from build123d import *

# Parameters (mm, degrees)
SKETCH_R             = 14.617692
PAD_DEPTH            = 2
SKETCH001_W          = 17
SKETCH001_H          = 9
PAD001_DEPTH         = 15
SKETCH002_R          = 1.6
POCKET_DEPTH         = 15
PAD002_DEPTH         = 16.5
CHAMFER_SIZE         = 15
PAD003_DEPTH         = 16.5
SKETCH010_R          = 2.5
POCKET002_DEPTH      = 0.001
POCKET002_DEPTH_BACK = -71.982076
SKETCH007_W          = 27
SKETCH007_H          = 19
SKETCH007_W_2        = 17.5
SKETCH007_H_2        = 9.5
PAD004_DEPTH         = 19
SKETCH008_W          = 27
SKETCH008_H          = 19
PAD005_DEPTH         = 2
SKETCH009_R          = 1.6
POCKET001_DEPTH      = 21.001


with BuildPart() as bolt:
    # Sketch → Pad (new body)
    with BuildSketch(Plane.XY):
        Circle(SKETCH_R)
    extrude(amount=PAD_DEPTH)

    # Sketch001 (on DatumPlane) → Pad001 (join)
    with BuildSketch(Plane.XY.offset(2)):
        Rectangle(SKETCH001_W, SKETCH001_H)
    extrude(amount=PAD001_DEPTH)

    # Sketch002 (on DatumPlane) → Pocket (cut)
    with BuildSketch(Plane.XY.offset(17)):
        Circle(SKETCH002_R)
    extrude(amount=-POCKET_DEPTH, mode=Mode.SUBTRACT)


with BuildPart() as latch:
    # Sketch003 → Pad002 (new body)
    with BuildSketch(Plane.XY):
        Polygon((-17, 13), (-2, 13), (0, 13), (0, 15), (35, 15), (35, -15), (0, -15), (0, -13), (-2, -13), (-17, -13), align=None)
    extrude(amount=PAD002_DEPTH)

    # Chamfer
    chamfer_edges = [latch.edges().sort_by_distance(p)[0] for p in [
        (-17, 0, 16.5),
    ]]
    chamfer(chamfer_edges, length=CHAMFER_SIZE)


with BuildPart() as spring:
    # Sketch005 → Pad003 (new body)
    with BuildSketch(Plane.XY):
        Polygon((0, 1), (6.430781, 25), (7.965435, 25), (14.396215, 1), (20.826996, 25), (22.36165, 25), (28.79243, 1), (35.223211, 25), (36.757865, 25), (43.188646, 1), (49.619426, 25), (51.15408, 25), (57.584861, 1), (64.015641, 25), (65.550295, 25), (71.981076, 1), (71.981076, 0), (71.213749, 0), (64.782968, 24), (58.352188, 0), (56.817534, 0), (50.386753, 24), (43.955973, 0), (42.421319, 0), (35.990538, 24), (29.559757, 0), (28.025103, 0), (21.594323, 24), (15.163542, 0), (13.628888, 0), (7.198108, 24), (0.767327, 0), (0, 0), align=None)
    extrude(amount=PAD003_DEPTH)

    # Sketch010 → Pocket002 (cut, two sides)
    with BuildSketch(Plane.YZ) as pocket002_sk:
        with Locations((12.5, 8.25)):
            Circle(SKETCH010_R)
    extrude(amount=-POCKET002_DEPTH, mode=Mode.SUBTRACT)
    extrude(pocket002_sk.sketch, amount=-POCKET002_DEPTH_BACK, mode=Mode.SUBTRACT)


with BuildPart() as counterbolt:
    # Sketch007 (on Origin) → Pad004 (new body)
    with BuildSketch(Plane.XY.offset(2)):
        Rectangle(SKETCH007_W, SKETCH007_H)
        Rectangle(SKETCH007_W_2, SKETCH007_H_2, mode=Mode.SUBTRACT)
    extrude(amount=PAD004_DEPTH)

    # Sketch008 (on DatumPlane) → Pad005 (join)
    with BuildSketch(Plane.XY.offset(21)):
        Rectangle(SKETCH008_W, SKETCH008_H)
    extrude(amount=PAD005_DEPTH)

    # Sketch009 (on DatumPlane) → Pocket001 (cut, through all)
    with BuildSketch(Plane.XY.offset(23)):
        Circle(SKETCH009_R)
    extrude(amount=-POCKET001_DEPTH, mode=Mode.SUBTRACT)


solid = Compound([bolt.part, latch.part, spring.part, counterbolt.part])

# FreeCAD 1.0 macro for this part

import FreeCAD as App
import Part
import Sketcher
from FreeCAD import Vector
Q = App.Units.Quantity


def edges_at(feature, points):
    """Names of the edges that pass closest to the given points."""
    edges = feature.Shape.Edges
    near = lambda p: min(range(len(edges)), key=lambda i: edges[i].distToShape(Part.Vertex(*p))[0])
    return sorted({f"Edge{near(p) + 1}" for p in points})


def add_polygon(sketch, points):
    """Adds a closed chain of lines whose ends are joined by coincident constraints."""
    first, n = sketch.GeometryCount, len(points)
    for a, b in zip(points, points[1:] + points[:1]):
        sketch.addGeometry(Part.LineSegment(App.Vector(*a, 0), App.Vector(*b, 0)), False)
    for i in range(n):
        sketch.addConstraint(Sketcher.Constraint("Coincident", first + i, 2, first + (i + 1) % n, 1))

doc = App.newDocument("Part")
body = doc.addObject("PartDesign::Body", "Body")

sketch1 = doc.addObject("Sketcher::SketchObject", "Sketch")
body.addObject(sketch1)
sketch1.AttachmentSupport = (doc.XY_Plane, [""])
sketch1.MapMode = "FlatFace"
sketch1.addGeometry(Part.Circle(Vector(0, 0, 0), Vector(0, 0, 1), 14.617692), False)
sketch1.addConstraint([
    Sketcher.Constraint("Coincident", 0, 3, -1, 1),
    Sketcher.Constraint("Diameter", 0, 29.235384),
])
pad1 = doc.addObject("PartDesign::Pad", "Pad")
body.addObject(pad1)
pad1.Profile = sketch1
pad1.Length = 2

sketch2 = doc.addObject("Sketcher::SketchObject", "Sketch001")
body.addObject(sketch2)
sketch2.AttachmentSupport = (doc.XY_Plane, [""])
sketch2.MapMode = "FlatFace"
sketch2.AttachmentOffset = App.Placement(Vector(0, 0, 2), App.Rotation())
add_polygon(sketch2, [(-8.5, 4.5), (-8.5, -4.5), (8.5, -4.5), (8.5, 4.5)])
sketch2.addConstraint([
    Sketcher.Constraint("Vertical", 0),
    Sketcher.Constraint("Horizontal", 1),
    Sketcher.Constraint("Vertical", 2),
    Sketcher.Constraint("Horizontal", 3),
    Sketcher.Constraint("Symmetric", 0, 2, 2, 2, -1, 1),
    Sketcher.Constraint("DistanceX", 1, 1, 1, 2, 17.0),
    Sketcher.Constraint("DistanceY", 0, 2, 0, 1, 9.0),
])
pad2 = doc.addObject("PartDesign::Pad", "Pad001")
body.addObject(pad2)
pad2.Profile = sketch2
pad2.Length = 15

sketch3 = doc.addObject("Sketcher::SketchObject", "Sketch002")
body.addObject(sketch3)
sketch3.AttachmentSupport = (doc.XY_Plane, [""])
sketch3.MapMode = "FlatFace"
sketch3.AttachmentOffset = App.Placement(Vector(0, 0, 17), App.Rotation())
sketch3.addGeometry(Part.Circle(Vector(0, 0, 0), Vector(0, 0, 1), 1.6), False)
sketch3.addConstraint([
    Sketcher.Constraint("Coincident", 0, 3, -1, 1),
    Sketcher.Constraint("Diameter", 0, 3.2),
])
pocket1 = doc.addObject("PartDesign::Pocket", "Pocket")
body.addObject(pocket1)
pocket1.Profile = sketch3
pocket1.Length = 15
body2 = doc.addObject("PartDesign::Body", "Body001")

sketch4 = doc.addObject("Sketcher::SketchObject", "Sketch003")
body2.addObject(sketch4)
sketch4.AttachmentSupport = (doc.getObject("XY_Plane001"), [""])
sketch4.MapMode = "FlatFace"
add_polygon(sketch4, [(0, 13), (-17, 13), (-17, -13), (0, -13), (0, -15), (35, -15), (35, 15), (0, 15)])
sketch4.addConstraint([
    Sketcher.Constraint("Horizontal", 0),
    Sketcher.Constraint("Vertical", 1),
    Sketcher.Constraint("Horizontal", 2),
    Sketcher.Constraint("Vertical", 3),
    Sketcher.Constraint("Horizontal", 4),
    Sketcher.Constraint("Vertical", 5),
    Sketcher.Constraint("Horizontal", 6),
    Sketcher.Constraint("Vertical", 7),
    Sketcher.Constraint("Symmetric", 3, 2, 6, 2, -1, 1),
    Sketcher.Constraint("Symmetric", 2, 2, 7, 2, -1),
    Sketcher.Constraint("DistanceX", 0, 2, 0, 1, 17.0),
    Sketcher.Constraint("DistanceX", 4, 1, 4, 2, 35.0),
    Sketcher.Constraint("DistanceY", 1, 2, 1, 1, 26.0),
    Sketcher.Constraint("DistanceY", 3, 2, 3, 1, 2.0),
])
pad3 = doc.addObject("PartDesign::Pad", "Pad002")
body2.addObject(pad3)
pad3.Profile = sketch4
pad3.Length = 16.5
doc.recompute()

chamfer = doc.addObject("PartDesign::Chamfer", "Chamfer")
body2.addObject(chamfer)
chamfer.Base = (pad3, edges_at(pad3, [(-17, 0, 16.5)]))
chamfer.Size = 15
body3 = doc.addObject("PartDesign::Body", "Body002")

sketch5 = doc.addObject("Sketcher::SketchObject", "Sketch004")
body3.addObject(sketch5)
sketch5.AttachmentSupport = (doc.getObject("XY_Plane002"), [""])
sketch5.MapMode = "FlatFace"
add_polygon(sketch5, [(6.430781, 25), (0, 1), (0, 0), (0.767327, 0), (7.198108, 24), (13.628888, 0), (15.163542, 0), (21.594323, 24), (28.025103, 0), (29.559757, 0), (35.990538, 24), (42.421319, 0), (43.955973, 0), (50.386753, 24), (56.817534, 0), (58.352188, 0), (64.782968, 24), (71.213749, 0), (71.981076, 0), (71.981076, 1), (65.550295, 25), (64.015641, 25), (57.584861, 1), (51.15408, 25), (49.619426, 25), (43.188646, 1), (36.757865, 25), (35.223211, 25), (28.79243, 1), (22.36165, 25), (20.826996, 25), (14.396215, 1), (7.965435, 25)])
sketch5.addConstraint([
    Sketcher.Constraint("Vertical", 1),
    Sketcher.Constraint("Horizontal", 2),
    Sketcher.Constraint("Horizontal", 5),
    Sketcher.Constraint("Horizontal", 8),
    Sketcher.Constraint("Horizontal", 11),
    Sketcher.Constraint("Horizontal", 14),
    Sketcher.Constraint("Horizontal", 17),
    Sketcher.Constraint("Vertical", 18),
    Sketcher.Constraint("Horizontal", 20),
    Sketcher.Constraint("Horizontal", 23),
    Sketcher.Constraint("Horizontal", 26),
    Sketcher.Constraint("Horizontal", 29),
    Sketcher.Constraint("Horizontal", 32),
    Sketcher.Constraint("Coincident", 1, 2, -1, 1),
    Sketcher.Constraint("PointOnObject", 4, 2, -1),
    Sketcher.Constraint("PointOnObject", 7, 2, -1),
    Sketcher.Constraint("PointOnObject", 10, 2, -1),
    Sketcher.Constraint("PointOnObject", 13, 2, -1),
    Sketcher.Constraint("PointOnObject", 16, 2, -1),
    Sketcher.Constraint("Parallel", 0, 3),
    Sketcher.Constraint("Parallel", 3, 6),
    Sketcher.Constraint("Parallel", 4, 7),
    Sketcher.Constraint("Parallel", 6, 9),
    Sketcher.Constraint("Parallel", 7, 10),
    Sketcher.Constraint("Parallel", 9, 12),
    Sketcher.Constraint("Parallel", 10, 13),
    Sketcher.Constraint("Parallel", 12, 15),
    Sketcher.Constraint("Parallel", 13, 16),
    Sketcher.Constraint("Parallel", 16, 19),
    Sketcher.Constraint("Parallel", 15, 21),
    Sketcher.Constraint("Parallel", 19, 22),
    Sketcher.Constraint("Parallel", 21, 24),
    Sketcher.Constraint("Parallel", 22, 25),
    Sketcher.Constraint("Parallel", 24, 27),
    Sketcher.Constraint("Parallel", 25, 28),
    Sketcher.Constraint("Parallel", 27, 30),
    Sketcher.Constraint("Parallel", 28, 31),
    Sketcher.Constraint("Horizontal", 3, 2, 6, 2),
    Sketcher.Constraint("Horizontal", 6, 2, 9, 2),
    Sketcher.Constraint("Horizontal", 9, 2, 12, 2),
    Sketcher.Constraint("Horizontal", 12, 2, 15, 2),
    Sketcher.Constraint("Horizontal", 0, 2, 18, 2),
    Sketcher.Constraint("Horizontal", 18, 2, 21, 2),
    Sketcher.Constraint("Horizontal", 20, 2, 22, 2),
    Sketcher.Constraint("Horizontal", 21, 2, 24, 2),
    Sketcher.Constraint("Horizontal", 23, 2, 25, 2),
    Sketcher.Constraint("Horizontal", 24, 2, 27, 2),
    Sketcher.Constraint("Horizontal", 26, 2, 28, 2),
    Sketcher.Constraint("Horizontal", 27, 2, 30, 2),
    Sketcher.Constraint("Horizontal", 29, 2, 31, 2),
    Sketcher.Constraint("Equal", 5, 8),
    Sketcher.Constraint("Equal", 8, 11),
    Sketcher.Constraint("Equal", 11, 14),
    Sketcher.Constraint("Equal", 2, 17),
    Sketcher.Constraint("Equal", 14, 20),
    Sketcher.Constraint("Equal", 20, 23),
    Sketcher.Constraint("Equal", 23, 26),
    Sketcher.Constraint("Equal", 26, 29),
    Sketcher.Constraint("Equal", 29, 32),
    Sketcher.Constraint("Equal", 0, 3),
    Sketcher.Constraint("Equal", 3, 4),
    Sketcher.Constraint("DistanceY", 1, 2, 1, 1, 1.0),
    Sketcher.Constraint("Angle", 0, Q("-105.000001 deg")),
    Sketcher.Constraint("DistanceY", -1, 1, 3, 2, 24.0),
    Sketcher.Constraint("DistanceX", 2, 1, 2, 2, 0.767327),
])
pad4 = doc.addObject("PartDesign::Pad", "Pad003")
body3.addObject(pad4)
pad4.Profile = sketch5
pad4.Length = 16.5

sketch6 = doc.addObject("Sketcher::SketchObject", "Sketch005")
body3.addObject(sketch6)
sketch6.AttachmentSupport = (doc.getObject("YZ_Plane002"), [""])
sketch6.MapMode = "FlatFace"
sketch6.addGeometry(Part.Circle(Vector(12.5, 8.25, 0), Vector(0, 0, 1), 2.5), False)
sketch6.addConstraint([
    Sketcher.Constraint("Diameter", 0, 5.0),
    Sketcher.Constraint("DistanceX", -1, 1, 0, 3, 12.5),
    Sketcher.Constraint("DistanceY", -1, 1, 0, 3, 8.25),
])
pocket2 = doc.addObject("PartDesign::Pocket", "Pocket001")
body3.addObject(pocket2)
pocket2.Profile = sketch6
pocket2.Type = "ThroughAll"
pocket2.Midplane = True
body4 = doc.addObject("PartDesign::Body", "Body003")

sketch7 = doc.addObject("Sketcher::SketchObject", "Sketch006")
body4.addObject(sketch7)
sketch7.AttachmentSupport = (doc.getObject("XY_Plane003"), [""])
sketch7.MapMode = "FlatFace"
sketch7.AttachmentOffset = App.Placement(Vector(0, 0, 2), App.Rotation())
add_polygon(sketch7, [(-13.5, 9.5), (-13.5, -9.5), (13.5, -9.5), (13.5, 9.5)])
add_polygon(sketch7, [(8.75, -4.75), (-8.75, -4.75), (-8.75, 4.75), (8.75, 4.75)])
sketch7.addConstraint([
    Sketcher.Constraint("Vertical", 0),
    Sketcher.Constraint("Horizontal", 1),
    Sketcher.Constraint("Vertical", 2),
    Sketcher.Constraint("Horizontal", 3),
    Sketcher.Constraint("Horizontal", 4),
    Sketcher.Constraint("Vertical", 5),
    Sketcher.Constraint("Horizontal", 6),
    Sketcher.Constraint("Vertical", 7),
    Sketcher.Constraint("Symmetric", 0, 2, 2, 2, -1, 1),
    Sketcher.Constraint("Symmetric", 4, 2, 6, 2, -1, 1),
    Sketcher.Constraint("DistanceX", 1, 1, 1, 2, 27.0),
    Sketcher.Constraint("DistanceY", 0, 2, 0, 1, 19.0),
    Sketcher.Constraint("DistanceX", 4, 2, 4, 1, 17.5),
    Sketcher.Constraint("DistanceY", 5, 1, 5, 2, 9.5),
])
pad5 = doc.addObject("PartDesign::Pad", "Pad004")
body4.addObject(pad5)
pad5.Profile = sketch7
pad5.Length = 19

sketch8 = doc.addObject("Sketcher::SketchObject", "Sketch007")
body4.addObject(sketch8)
sketch8.AttachmentSupport = (doc.getObject("XY_Plane003"), [""])
sketch8.MapMode = "FlatFace"
sketch8.AttachmentOffset = App.Placement(Vector(0, 0, 21), App.Rotation())
add_polygon(sketch8, [(-13.5, 9.5), (-13.5, -9.5), (13.5, -9.5), (13.5, 9.5)])
sketch8.addConstraint([
    Sketcher.Constraint("Vertical", 0),
    Sketcher.Constraint("Horizontal", 1),
    Sketcher.Constraint("Vertical", 2),
    Sketcher.Constraint("Horizontal", 3),
    Sketcher.Constraint("Symmetric", 0, 2, 2, 2, -1, 1),
    Sketcher.Constraint("DistanceX", 1, 1, 1, 2, 27.0),
    Sketcher.Constraint("DistanceY", 0, 2, 0, 1, 19.0),
])
pad6 = doc.addObject("PartDesign::Pad", "Pad005")
body4.addObject(pad6)
pad6.Profile = sketch8
pad6.Length = 2

sketch9 = doc.addObject("Sketcher::SketchObject", "Sketch008")
body4.addObject(sketch9)
sketch9.AttachmentSupport = (doc.getObject("XY_Plane003"), [""])
sketch9.MapMode = "FlatFace"
sketch9.AttachmentOffset = App.Placement(Vector(0, 0, 23), App.Rotation())
sketch9.addGeometry(Part.Circle(Vector(0, 0, 0), Vector(0, 0, 1), 1.6), False)
sketch9.addConstraint([
    Sketcher.Constraint("Coincident", 0, 3, -1, 1),
    Sketcher.Constraint("Diameter", 0, 3.2),
])
pocket3 = doc.addObject("PartDesign::Pocket", "Pocket002")
body4.addObject(pocket3)
pocket3.Profile = sketch9
pocket3.Type = "ThroughAll"

doc.recompute()
